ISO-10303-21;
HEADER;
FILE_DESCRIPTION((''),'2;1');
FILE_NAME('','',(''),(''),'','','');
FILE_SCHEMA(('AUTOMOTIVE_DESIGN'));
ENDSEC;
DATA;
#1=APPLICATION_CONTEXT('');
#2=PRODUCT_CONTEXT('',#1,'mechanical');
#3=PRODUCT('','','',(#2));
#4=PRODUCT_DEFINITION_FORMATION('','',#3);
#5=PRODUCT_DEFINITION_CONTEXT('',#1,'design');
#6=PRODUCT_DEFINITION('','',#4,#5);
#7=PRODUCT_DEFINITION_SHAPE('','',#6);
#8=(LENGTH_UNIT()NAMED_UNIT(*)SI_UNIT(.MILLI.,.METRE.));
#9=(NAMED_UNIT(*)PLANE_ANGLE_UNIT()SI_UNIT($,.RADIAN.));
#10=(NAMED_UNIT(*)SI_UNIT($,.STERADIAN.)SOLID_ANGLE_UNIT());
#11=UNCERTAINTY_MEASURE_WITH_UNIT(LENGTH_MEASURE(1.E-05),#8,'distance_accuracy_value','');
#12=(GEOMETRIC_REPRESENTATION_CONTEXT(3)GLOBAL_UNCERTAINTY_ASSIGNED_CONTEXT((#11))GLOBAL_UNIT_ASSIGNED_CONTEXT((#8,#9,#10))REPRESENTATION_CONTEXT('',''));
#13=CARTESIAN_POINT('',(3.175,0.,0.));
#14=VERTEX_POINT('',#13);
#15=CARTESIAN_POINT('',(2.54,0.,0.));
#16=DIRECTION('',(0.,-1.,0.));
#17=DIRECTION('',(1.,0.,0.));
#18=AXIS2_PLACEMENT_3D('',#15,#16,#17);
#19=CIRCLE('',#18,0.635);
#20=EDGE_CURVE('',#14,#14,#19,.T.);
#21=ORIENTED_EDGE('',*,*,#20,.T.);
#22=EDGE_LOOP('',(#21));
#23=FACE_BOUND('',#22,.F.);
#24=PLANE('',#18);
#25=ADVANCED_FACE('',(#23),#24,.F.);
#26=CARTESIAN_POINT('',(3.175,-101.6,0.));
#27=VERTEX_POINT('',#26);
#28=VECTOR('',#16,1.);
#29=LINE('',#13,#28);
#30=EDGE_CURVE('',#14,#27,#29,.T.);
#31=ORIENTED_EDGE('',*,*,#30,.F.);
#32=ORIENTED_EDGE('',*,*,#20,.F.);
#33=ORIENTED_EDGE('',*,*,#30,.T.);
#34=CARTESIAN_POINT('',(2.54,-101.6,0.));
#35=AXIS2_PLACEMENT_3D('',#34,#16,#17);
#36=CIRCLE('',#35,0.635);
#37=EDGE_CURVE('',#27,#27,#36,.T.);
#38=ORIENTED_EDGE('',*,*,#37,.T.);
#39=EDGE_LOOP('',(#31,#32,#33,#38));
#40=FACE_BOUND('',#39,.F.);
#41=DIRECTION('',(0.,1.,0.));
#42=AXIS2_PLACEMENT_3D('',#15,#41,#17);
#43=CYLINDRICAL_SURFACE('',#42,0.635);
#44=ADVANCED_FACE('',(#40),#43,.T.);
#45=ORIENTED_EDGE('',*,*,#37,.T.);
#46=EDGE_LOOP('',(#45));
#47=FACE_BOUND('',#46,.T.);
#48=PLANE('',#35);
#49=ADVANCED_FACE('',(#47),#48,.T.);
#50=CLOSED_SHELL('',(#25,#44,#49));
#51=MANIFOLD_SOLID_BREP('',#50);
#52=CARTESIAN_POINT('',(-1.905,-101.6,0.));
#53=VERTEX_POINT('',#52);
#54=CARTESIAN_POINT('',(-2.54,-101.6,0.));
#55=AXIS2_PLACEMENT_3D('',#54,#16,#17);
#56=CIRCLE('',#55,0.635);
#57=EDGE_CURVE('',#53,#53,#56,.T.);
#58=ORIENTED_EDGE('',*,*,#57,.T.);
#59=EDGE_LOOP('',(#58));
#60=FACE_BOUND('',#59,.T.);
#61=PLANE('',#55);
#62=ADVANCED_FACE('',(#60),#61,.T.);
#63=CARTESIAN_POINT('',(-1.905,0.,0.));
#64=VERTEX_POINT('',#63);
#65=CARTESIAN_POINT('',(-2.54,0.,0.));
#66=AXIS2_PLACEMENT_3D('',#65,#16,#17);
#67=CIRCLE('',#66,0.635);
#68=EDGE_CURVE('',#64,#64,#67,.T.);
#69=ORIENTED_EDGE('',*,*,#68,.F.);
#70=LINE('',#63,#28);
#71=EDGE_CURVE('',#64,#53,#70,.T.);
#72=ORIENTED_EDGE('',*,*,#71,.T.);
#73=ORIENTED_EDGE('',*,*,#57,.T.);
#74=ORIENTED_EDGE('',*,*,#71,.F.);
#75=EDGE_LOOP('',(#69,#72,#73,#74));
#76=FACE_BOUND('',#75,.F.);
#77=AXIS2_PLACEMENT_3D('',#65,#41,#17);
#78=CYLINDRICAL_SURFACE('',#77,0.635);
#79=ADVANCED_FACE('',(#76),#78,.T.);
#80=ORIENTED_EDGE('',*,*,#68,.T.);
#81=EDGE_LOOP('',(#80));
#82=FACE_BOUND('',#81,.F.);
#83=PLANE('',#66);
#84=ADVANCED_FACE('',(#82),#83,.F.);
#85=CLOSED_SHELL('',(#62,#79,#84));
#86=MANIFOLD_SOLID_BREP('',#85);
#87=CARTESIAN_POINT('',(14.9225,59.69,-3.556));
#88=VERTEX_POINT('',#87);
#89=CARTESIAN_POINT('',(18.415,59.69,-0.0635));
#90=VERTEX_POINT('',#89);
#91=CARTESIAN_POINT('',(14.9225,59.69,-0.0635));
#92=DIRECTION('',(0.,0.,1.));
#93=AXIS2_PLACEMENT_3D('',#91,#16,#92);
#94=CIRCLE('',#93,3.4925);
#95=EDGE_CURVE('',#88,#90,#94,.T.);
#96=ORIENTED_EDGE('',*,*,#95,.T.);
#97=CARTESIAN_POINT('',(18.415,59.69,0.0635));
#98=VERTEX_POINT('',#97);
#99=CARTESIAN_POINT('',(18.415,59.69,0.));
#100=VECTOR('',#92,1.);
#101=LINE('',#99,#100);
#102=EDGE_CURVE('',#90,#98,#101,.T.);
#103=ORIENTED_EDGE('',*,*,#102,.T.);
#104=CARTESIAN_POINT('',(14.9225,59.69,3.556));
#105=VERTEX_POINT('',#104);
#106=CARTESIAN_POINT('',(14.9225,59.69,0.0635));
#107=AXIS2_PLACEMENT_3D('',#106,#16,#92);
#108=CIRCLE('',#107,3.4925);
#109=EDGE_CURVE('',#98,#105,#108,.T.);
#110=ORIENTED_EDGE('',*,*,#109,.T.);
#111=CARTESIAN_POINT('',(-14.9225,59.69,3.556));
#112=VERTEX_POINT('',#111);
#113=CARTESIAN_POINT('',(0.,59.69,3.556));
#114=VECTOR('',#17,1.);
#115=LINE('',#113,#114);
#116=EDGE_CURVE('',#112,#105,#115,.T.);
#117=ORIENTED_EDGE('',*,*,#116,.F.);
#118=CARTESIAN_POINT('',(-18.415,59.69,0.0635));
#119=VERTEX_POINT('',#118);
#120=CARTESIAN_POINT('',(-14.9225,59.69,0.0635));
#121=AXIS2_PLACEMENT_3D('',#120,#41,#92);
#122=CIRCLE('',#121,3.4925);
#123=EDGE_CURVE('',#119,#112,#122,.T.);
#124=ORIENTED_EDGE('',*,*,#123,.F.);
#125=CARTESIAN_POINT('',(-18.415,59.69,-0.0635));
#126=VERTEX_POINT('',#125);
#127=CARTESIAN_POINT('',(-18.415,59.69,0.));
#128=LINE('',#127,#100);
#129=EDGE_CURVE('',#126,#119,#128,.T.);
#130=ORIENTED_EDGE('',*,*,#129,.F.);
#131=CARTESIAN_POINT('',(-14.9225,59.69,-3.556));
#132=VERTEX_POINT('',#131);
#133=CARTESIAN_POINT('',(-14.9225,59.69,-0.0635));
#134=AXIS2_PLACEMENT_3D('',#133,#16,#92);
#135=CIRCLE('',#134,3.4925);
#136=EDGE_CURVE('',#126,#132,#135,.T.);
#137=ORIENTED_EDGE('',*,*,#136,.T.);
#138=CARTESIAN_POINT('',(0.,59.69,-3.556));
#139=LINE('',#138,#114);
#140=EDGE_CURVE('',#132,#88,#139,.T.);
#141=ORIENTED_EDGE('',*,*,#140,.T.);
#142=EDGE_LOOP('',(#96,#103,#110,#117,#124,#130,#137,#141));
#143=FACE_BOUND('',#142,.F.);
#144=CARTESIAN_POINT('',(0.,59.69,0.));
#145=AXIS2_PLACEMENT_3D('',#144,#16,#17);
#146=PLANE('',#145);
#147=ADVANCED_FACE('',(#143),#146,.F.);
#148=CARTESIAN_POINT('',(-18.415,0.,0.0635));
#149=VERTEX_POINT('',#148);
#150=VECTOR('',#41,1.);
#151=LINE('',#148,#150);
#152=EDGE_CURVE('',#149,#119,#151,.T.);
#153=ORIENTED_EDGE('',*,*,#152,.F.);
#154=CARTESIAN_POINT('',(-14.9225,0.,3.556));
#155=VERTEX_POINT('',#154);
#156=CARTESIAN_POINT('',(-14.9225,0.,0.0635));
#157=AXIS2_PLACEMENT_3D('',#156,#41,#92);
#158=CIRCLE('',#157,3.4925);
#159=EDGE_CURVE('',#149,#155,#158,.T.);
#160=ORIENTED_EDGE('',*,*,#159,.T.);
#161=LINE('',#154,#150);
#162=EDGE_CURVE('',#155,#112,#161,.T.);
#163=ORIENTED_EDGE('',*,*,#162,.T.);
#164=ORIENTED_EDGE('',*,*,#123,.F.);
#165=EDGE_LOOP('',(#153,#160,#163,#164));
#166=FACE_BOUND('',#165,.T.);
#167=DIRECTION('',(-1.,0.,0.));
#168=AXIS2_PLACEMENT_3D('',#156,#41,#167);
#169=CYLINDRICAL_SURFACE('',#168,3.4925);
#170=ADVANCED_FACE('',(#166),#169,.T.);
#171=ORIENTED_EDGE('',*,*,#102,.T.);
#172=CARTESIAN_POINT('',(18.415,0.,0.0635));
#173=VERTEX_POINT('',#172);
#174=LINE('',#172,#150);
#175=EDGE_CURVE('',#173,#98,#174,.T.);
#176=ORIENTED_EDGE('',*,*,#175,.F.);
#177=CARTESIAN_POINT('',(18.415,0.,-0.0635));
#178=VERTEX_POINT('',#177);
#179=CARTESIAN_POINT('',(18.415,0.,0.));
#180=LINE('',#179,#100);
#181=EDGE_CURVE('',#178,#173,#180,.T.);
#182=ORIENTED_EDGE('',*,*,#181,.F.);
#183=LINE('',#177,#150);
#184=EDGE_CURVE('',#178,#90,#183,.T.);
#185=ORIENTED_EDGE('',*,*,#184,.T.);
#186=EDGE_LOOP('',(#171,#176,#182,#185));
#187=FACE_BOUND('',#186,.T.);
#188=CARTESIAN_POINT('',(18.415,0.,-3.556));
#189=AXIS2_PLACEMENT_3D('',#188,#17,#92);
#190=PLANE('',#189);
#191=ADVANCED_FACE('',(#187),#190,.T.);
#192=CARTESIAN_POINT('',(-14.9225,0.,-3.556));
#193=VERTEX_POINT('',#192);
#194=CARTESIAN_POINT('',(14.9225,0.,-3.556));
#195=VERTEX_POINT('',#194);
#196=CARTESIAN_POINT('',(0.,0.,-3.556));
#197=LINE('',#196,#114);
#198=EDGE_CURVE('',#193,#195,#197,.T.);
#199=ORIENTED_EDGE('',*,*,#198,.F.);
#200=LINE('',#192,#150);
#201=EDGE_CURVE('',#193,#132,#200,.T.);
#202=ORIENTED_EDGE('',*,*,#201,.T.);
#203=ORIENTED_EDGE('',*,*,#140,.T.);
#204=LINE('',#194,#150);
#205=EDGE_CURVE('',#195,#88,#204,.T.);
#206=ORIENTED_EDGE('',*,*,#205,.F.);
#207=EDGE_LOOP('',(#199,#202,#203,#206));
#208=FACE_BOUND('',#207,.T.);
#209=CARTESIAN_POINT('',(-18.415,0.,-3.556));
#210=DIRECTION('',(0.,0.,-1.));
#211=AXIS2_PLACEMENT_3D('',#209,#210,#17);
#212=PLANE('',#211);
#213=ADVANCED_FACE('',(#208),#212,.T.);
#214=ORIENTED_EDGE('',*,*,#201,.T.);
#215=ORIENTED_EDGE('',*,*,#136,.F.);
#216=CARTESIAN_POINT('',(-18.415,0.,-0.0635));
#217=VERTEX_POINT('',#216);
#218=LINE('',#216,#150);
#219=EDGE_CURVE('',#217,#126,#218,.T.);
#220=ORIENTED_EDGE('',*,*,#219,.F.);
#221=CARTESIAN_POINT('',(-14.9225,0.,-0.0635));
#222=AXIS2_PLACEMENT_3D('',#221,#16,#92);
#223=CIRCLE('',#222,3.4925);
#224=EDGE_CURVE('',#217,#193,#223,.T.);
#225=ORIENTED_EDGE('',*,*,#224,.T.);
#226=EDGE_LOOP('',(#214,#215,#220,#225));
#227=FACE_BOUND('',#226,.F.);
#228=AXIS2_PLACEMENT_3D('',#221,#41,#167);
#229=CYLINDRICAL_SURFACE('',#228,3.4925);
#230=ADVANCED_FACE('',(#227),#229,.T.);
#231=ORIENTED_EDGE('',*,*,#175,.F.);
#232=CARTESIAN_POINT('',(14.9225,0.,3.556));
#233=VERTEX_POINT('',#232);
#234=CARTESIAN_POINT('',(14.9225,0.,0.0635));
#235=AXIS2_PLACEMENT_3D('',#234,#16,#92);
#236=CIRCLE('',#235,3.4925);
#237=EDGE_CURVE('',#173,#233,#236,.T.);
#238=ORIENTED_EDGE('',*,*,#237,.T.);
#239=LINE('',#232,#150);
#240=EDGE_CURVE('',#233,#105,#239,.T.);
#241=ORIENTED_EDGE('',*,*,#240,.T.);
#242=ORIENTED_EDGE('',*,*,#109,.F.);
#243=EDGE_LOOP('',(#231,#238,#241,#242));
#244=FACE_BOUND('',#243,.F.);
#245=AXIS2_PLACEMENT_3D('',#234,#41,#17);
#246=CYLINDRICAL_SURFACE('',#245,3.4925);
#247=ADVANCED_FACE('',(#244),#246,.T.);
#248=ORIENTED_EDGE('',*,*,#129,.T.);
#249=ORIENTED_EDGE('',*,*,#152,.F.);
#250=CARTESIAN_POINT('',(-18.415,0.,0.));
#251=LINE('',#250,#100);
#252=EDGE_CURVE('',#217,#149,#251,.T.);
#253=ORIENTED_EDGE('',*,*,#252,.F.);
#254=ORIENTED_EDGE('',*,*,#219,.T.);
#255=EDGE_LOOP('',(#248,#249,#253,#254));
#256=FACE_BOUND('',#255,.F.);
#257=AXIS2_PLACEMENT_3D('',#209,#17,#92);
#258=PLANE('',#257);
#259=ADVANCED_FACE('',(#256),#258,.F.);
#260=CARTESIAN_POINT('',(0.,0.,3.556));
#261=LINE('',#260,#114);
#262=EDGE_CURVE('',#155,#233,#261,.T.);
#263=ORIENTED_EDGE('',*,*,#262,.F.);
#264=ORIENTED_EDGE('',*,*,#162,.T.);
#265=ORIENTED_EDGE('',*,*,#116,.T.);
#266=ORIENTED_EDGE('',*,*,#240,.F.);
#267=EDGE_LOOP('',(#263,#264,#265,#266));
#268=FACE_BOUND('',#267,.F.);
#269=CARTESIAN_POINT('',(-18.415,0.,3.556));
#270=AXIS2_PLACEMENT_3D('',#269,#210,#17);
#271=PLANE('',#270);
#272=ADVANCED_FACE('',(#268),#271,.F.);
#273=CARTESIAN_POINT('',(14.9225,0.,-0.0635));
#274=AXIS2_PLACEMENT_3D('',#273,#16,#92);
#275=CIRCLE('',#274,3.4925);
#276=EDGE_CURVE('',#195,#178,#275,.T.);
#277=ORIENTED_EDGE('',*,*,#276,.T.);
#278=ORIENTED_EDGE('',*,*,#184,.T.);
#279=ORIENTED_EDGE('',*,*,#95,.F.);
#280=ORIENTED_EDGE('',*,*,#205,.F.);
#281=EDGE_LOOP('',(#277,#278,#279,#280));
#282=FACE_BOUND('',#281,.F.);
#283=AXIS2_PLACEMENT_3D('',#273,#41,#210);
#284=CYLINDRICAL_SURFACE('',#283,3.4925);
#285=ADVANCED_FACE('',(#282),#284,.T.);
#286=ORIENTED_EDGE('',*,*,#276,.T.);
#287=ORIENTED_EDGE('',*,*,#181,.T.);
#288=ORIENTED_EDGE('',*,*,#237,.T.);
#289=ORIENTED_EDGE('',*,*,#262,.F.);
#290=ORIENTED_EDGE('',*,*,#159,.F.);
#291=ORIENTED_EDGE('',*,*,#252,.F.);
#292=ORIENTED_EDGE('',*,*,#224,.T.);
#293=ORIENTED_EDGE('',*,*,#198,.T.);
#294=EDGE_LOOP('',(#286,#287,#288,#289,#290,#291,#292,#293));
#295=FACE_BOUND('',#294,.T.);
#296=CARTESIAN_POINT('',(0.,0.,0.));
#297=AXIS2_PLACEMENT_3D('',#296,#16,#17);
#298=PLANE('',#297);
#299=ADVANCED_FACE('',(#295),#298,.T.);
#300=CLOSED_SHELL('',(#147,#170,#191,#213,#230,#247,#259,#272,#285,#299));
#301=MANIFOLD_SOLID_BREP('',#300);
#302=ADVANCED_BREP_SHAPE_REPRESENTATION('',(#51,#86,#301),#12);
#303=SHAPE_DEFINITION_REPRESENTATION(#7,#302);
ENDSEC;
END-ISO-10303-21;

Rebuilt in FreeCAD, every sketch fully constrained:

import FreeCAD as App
import Part
import Sketcher

V = App.Vector
Q = App.Units.Quantity


def edges_at(feature, points):
    """Names of the edges that pass closest to the given points."""
    edges = feature.Shape.Edges
    near = lambda p: min(range(len(edges)), key=lambda i: edges[i].distToShape(Part.Vertex(*p))[0])
    return sorted({f"Edge{near(p) + 1}" for p in points})


def add_polygon(sketch, points):
    """Adds a closed chain of lines whose ends are joined by coincident constraints."""
    first, n = sketch.GeometryCount, len(points)
    for a, b in zip(points, points[1:] + points[:1]):
        sketch.addGeometry(Part.LineSegment(App.Vector(*a, 0), App.Vector(*b, 0)), False)
    for i in range(n):
        sketch.addConstraint(Sketcher.Constraint("Coincident", first + i, 2, first + (i + 1) % n, 1))

doc = App.newDocument("Part")
body = doc.addObject("PartDesign::Body", "Body")

sketch1 = doc.addObject("Sketcher::SketchObject", "Sketch")
body.addObject(sketch1)
sketch1.AttachmentSupport = (doc.XZ_Plane, [""])
sketch1.MapMode = "FlatFace"
add_polygon(sketch1, [(-18, 4), (-18, -4), (18, -4), (18, 4)])
sketch1.addConstraint(Sketcher.Constraint("Vertical", 0))
sketch1.addConstraint(Sketcher.Constraint("Horizontal", 1))
sketch1.addConstraint(Sketcher.Constraint("Vertical", 2))
sketch1.addConstraint(Sketcher.Constraint("Horizontal", 3))
sketch1.addConstraint(Sketcher.Constraint("Symmetric", 0, 2, 2, 2, -1, 1))
sketch1.addConstraint(Sketcher.Constraint("DistanceX", 1, 1, 1, 2, Q("1.45 in")))
sketch1.addConstraint(Sketcher.Constraint("DistanceY", 0, 2, 0, 1, Q("0.28 in")))
pad1 = doc.addObject("PartDesign::Pad", "Pad")
body.addObject(pad1)
pad1.Profile = sketch1
pad1.Length = Q("2.35 in")
pad1.Reversed = True
doc.recompute()

fillet = doc.addObject("PartDesign::Fillet", "Fillet")
body.addObject(fillet)
fillet.Base = (pad1, edges_at(pad1, [
    (-18.415, 29.845, 3.556),
    (-18.415, 29.845, -3.556),
    (18.415, 29.845, 3.556),
    (18.415, 29.845, -3.556),
]))
fillet.Radius = Q("0.1375 in")
body2 = doc.addObject("PartDesign::Body", "Body001")

sketch2 = doc.addObject("Sketcher::SketchObject", "Sketch001")
body2.addObject(sketch2)
sketch2.AttachmentSupport = (doc.getObject("XZ_Plane001"), [""])
sketch2.MapMode = "FlatFace"
sketch2.addGeometry(Part.Circle(V(2.5, 0, 0), V(0, 0, 1), 0.6), False)
sketch2.addConstraint(Sketcher.Constraint("PointOnObject", 0, 3, -1))
sketch2.addConstraint(Sketcher.Constraint("Diameter", 0, Q("0.05 in")))
sketch2.addConstraint(Sketcher.Constraint("DistanceX", -1, 1, 0, 3, Q("0.1 in")))
pad2 = doc.addObject("PartDesign::Pad", "Pad001")
body2.addObject(pad2)
pad2.Profile = sketch2
pad2.Length = Q("4 in")
body3 = doc.addObject("PartDesign::Body", "Body002")

sketch3 = doc.addObject("Sketcher::SketchObject", "Sketch002")
body3.addObject(sketch3)
sketch3.AttachmentSupport = (doc.getObject("XZ_Plane002"), [""])
sketch3.MapMode = "FlatFace"
sketch3.addGeometry(Part.Circle(V(-2.5, 0, 0), V(0, 0, 1), 0.6), False)
sketch3.addConstraint(Sketcher.Constraint("PointOnObject", 0, 3, -1))
sketch3.addConstraint(Sketcher.Constraint("Diameter", 0, Q("0.05 in")))
sketch3.addConstraint(Sketcher.Constraint("DistanceX", 0, 3, -1, 1, Q("0.1 in")))
pad3 = doc.addObject("PartDesign::Pad", "Pad002")
body3.addObject(pad3)
pad3.Profile = sketch3
pad3.Length = Q("4 in")

doc.recompute()
